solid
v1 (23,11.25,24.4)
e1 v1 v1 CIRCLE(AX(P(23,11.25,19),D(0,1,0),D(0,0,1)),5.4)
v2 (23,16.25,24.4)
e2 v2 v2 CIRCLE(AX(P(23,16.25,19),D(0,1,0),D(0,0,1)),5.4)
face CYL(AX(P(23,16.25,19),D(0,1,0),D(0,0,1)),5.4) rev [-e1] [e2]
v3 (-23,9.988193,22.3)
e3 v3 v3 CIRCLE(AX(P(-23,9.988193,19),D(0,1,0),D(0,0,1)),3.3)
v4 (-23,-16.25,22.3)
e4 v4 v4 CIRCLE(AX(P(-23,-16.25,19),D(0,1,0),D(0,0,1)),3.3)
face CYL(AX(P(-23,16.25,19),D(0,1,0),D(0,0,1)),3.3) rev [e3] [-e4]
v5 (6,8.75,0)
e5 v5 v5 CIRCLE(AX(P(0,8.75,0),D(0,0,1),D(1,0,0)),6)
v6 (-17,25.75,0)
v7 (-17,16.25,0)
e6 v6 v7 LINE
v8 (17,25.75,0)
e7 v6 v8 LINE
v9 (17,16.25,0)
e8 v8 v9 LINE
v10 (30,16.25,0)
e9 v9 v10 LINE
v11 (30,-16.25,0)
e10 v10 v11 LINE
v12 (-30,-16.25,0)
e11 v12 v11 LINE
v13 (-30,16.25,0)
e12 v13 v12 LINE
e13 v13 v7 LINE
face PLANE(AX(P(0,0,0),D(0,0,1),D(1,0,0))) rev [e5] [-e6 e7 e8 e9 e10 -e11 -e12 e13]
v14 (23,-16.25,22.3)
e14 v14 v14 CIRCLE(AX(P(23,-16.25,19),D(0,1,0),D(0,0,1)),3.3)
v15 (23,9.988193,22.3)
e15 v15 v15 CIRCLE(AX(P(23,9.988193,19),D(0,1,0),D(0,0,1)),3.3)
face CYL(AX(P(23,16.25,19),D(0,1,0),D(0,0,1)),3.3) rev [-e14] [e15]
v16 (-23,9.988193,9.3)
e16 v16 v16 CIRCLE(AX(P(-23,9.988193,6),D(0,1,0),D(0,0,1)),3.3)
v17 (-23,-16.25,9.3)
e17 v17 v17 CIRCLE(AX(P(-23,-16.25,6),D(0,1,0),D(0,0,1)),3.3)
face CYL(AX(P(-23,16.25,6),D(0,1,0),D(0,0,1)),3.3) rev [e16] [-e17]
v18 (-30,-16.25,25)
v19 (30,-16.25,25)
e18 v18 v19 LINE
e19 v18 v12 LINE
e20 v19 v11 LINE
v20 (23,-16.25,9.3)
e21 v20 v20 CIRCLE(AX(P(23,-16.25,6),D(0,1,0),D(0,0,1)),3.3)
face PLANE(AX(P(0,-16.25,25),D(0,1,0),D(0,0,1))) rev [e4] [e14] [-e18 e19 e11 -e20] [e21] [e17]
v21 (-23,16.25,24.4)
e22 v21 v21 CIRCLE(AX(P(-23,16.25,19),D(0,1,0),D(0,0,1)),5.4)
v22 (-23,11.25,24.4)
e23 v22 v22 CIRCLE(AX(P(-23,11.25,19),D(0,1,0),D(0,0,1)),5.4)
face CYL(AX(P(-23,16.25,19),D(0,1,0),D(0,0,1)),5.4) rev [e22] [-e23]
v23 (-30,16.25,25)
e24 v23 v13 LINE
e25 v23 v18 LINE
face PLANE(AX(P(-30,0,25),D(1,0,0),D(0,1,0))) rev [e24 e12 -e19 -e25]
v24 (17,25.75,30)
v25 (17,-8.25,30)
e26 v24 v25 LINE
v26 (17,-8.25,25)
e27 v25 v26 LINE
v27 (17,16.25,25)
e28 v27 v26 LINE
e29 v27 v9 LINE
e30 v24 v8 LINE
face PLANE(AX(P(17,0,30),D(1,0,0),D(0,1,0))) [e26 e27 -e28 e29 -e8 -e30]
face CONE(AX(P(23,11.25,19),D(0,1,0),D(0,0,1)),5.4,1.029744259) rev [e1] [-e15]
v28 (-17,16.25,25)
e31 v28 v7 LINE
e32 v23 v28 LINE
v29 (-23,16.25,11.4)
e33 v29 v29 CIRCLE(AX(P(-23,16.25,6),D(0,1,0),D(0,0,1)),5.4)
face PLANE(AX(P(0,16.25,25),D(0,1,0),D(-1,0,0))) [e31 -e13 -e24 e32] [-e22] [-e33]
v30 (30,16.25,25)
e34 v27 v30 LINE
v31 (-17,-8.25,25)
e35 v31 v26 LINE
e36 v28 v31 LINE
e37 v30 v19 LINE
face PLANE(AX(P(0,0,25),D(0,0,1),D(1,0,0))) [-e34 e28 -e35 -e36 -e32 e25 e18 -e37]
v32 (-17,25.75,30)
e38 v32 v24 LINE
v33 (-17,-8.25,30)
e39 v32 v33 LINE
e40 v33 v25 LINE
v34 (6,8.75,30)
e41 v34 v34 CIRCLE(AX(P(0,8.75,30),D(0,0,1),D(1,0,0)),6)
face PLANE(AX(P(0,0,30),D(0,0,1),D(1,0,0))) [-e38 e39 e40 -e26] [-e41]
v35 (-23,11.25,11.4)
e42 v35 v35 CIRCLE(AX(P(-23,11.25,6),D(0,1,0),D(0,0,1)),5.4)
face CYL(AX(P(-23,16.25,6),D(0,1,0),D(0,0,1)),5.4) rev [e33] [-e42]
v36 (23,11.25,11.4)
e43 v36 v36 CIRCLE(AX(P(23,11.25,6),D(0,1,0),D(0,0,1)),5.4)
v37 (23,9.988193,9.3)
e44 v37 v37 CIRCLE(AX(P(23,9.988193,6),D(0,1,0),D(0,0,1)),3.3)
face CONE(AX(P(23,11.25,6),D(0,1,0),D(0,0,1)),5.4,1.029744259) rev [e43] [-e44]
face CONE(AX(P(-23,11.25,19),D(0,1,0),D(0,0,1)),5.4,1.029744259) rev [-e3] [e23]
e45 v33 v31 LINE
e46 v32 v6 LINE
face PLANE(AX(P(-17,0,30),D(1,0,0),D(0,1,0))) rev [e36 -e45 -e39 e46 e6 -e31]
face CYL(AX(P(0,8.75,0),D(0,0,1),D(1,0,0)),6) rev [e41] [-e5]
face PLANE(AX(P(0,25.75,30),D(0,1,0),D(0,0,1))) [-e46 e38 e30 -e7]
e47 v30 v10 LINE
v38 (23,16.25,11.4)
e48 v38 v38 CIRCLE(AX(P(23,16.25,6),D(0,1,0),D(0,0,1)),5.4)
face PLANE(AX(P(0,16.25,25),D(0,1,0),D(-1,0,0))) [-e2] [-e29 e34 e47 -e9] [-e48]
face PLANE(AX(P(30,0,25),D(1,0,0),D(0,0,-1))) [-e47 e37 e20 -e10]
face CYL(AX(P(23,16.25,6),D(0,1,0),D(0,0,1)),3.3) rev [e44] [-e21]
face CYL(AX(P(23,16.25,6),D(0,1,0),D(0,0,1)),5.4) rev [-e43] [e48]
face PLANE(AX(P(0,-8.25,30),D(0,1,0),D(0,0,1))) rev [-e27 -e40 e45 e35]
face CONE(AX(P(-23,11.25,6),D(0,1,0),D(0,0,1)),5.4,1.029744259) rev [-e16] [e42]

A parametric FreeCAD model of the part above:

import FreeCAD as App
import Part
import Sketcher
from FreeCAD import Vector
Q = App.Units.Quantity


def add_polygon(sketch, points):
    """Adds a closed chain of lines whose ends are joined by coincident constraints."""
    first, n = sketch.GeometryCount, len(points)
    for a, b in zip(points, points[1:] + points[:1]):
        sketch.addGeometry(Part.LineSegment(App.Vector(*a, 0), App.Vector(*b, 0)), False)
    for i in range(n):
        sketch.addConstraint(Sketcher.Constraint("Coincident", first + i, 2, first + (i + 1) % n, 1))

doc = App.newDocument("Part")
body = doc.addObject("PartDesign::Body", "Body")

sketch1 = body.newObject("Sketcher::SketchObject", "Sketch")
sketch1.AttachmentSupport = (doc.getObject("XY_Plane"), [""])
sketch1.MapMode = "FlatFace"
add_polygon(sketch1, [(-17, 16), (-30, 16), (-30, -16), (30, -16), (30, 16), (17, 16), (17, -8), (-17, -8)])
sketch1.addConstraint([
    Sketcher.Constraint("Horizontal", 0),
    Sketcher.Constraint("Vertical", 1),
    Sketcher.Constraint("Horizontal", 2),
    Sketcher.Constraint("Vertical", 3),
    Sketcher.Constraint("Horizontal", 4),
    Sketcher.Constraint("Vertical", 5),
    Sketcher.Constraint("Horizontal", 6),
    Sketcher.Constraint("Vertical", 7),
    Sketcher.Constraint("Symmetric", 0, 2, 2, 2, -1, 1),
    Sketcher.Constraint("Symmetric", 4, 2, 7, 2, -2),
    Sketcher.Constraint("DistanceX", 0, 2, 0, 1, Q("13 mm")),
    Sketcher.Constraint("DistanceX", 2, 1, 2, 2, Q("60 mm")),
    Sketcher.Constraint("DistanceY", 1, 2, 1, 1, Q("32.5 mm")),
    Sketcher.Constraint("DistanceY", 5, 2, 5, 1, Q("24.5 mm")),
])
pad1 = body.newObject("PartDesign::Pad", "Pad")
pad1.Profile = sketch1
pad1.Length = 25

sketch2 = body.newObject("Sketcher::SketchObject", "Sketch001")
sketch2.AttachmentSupport = (doc.getObject("XY_Plane"), [""])
sketch2.MapMode = "FlatFace"
add_polygon(sketch2, [(-17, 26), (-17, -8), (17, -8), (17, 26)])
sketch2.addConstraint([
    Sketcher.Constraint("Vertical", 0),
    Sketcher.Constraint("Horizontal", 1),
    Sketcher.Constraint("Vertical", 2),
    Sketcher.Constraint("Horizontal", 3),
    Sketcher.Constraint("Equal", 3, 0),
    Sketcher.Constraint("DistanceX", 1, 1, 1, 2, Q("34 mm")),
    Sketcher.Constraint("DistanceX", 0, 2, -1, 1, Q("17 mm")),
    Sketcher.Constraint("DistanceY", 0, 2, -1, 1, Q("8.25 mm")),
])
pad2 = body.newObject("PartDesign::Pad", "Pad001")
pad2.Profile = sketch2
pad2.Length = 30

sketch3 = body.newObject("Sketcher::SketchObject", "Sketch002")
sketch3.AttachmentSupport = (doc.getObject("XZ_Plane"), [""])
sketch3.MapMode = "FlatFace"
sketch3.AttachmentOffset = App.Placement(Vector(0, 0, -16.25), App.Rotation())
sketch3.addGeometry([
    Part.Circle(Vector(-23, 19, 0), Vector(0, 0, 1), 3.3),
    Part.Circle(Vector(-23, 6, 0), Vector(0, 0, 1), 3.3),
    Part.Circle(Vector(23, 6, 0), Vector(0, 0, 1), 3.3),
    Part.Circle(Vector(23, 19, 0), Vector(0, 0, 1), 3.3),
], False)
sketch3.addConstraint([
    Sketcher.Constraint("Equal", 0, 1),
    Sketcher.Constraint("Equal", 1, 2),
    Sketcher.Constraint("Equal", 2, 3),
    Sketcher.Constraint("Symmetric", 1, 3, 2, 3, -2),
    Sketcher.Constraint("Symmetric", 0, 3, 3, 3, -2),
    Sketcher.Constraint("Vertical", 0, 3, 1, 3),
    Sketcher.Constraint("Diameter", 0, Q("6.6 mm")),
    Sketcher.Constraint("DistanceX", 0, 3, -1, 1, Q("23 mm")),
    Sketcher.Constraint("DistanceY", -1, 1, 0, 3, Q("19 mm")),
    Sketcher.Constraint("DistanceY", -1, 1, 1, 3, Q("6 mm")),
])
doc.recompute()
hole = body.newObject("PartDesign::Hole", "Hole")
hole.Profile = sketch3
hole.ThreadType = "None"
hole.Diameter = 6.6
hole.DepthType = "ThroughAll"
hole.Reversed = True

sketch4 = body.newObject("Sketcher::SketchObject", "Sketch003")
sketch4.AttachmentSupport = (doc.getObject("XY_Plane"), [""])
sketch4.MapMode = "FlatFace"
sketch4.AttachmentOffset = App.Placement(Vector(0, 0, 30), App.Rotation())
sketch4.addGeometry(Part.Circle(Vector(0, 9, 0), Vector(0, 0, 1), 6), False)
sketch4.addConstraint([
    Sketcher.Constraint("PointOnObject", 0, 3, -2),
    Sketcher.Constraint("Diameter", 0, Q("12 mm")),
    Sketcher.Constraint("DistanceY", -1, 1, 0, 3, Q("8.75 mm")),
])
pocket1 = body.newObject("PartDesign::Pocket", "Pocket")
pocket1.Profile = sketch4
pocket1.Length = 30

sketch5 = body.newObject("Sketcher::SketchObject", "Sketch004")
sketch5.AttachmentSupport = (doc.getObject("XZ_Plane"), [""])
sketch5.MapMode = "FlatFace"
sketch5.AttachmentOffset = App.Placement(Vector(0, 0, -16.25), App.Rotation())
sketch5.addGeometry([
    Part.Circle(Vector(-23, 19, 0), Vector(0, 0, 1), 5),
    Part.Circle(Vector(-23, 6, 0), Vector(0, 0, 1), 5),
    Part.Circle(Vector(23, 6, 0), Vector(0, 0, 1), 5),
    Part.Circle(Vector(23, 19, 0), Vector(0, 0, 1), 5),
], False)
sketch5.addConstraint([
    Sketcher.Constraint("Equal", 0, 1),
    Sketcher.Constraint("Equal", 1, 2),
    Sketcher.Constraint("Equal", 2, 3),
    Sketcher.Constraint("Symmetric", 1, 3, 2, 3, -2),
    Sketcher.Constraint("Symmetric", 0, 3, 3, 3, -2),
    Sketcher.Constraint("Vertical", 0, 3, 1, 3),
    Sketcher.Constraint("Diameter", 0, Q("10.8 mm")),
    Sketcher.Constraint("DistanceX", 0, 3, -1, 1, Q("23 mm")),
    Sketcher.Constraint("DistanceY", -1, 1, 0, 3, Q("19 mm")),
    Sketcher.Constraint("DistanceY", -1, 1, 1, 3, Q("6 mm")),
])
doc.recompute()
hole2 = body.newObject("PartDesign::Hole", "Hole001")
hole2.Profile = sketch5
hole2.ThreadType = "None"
hole2.Diameter = 10.8
hole2.DepthType = "Dimension"
hole2.Depth = 5
hole2.DrillPoint = "Angled"
hole2.DrillPointAngle = 118
hole2.Reversed = True

doc.recompute()
